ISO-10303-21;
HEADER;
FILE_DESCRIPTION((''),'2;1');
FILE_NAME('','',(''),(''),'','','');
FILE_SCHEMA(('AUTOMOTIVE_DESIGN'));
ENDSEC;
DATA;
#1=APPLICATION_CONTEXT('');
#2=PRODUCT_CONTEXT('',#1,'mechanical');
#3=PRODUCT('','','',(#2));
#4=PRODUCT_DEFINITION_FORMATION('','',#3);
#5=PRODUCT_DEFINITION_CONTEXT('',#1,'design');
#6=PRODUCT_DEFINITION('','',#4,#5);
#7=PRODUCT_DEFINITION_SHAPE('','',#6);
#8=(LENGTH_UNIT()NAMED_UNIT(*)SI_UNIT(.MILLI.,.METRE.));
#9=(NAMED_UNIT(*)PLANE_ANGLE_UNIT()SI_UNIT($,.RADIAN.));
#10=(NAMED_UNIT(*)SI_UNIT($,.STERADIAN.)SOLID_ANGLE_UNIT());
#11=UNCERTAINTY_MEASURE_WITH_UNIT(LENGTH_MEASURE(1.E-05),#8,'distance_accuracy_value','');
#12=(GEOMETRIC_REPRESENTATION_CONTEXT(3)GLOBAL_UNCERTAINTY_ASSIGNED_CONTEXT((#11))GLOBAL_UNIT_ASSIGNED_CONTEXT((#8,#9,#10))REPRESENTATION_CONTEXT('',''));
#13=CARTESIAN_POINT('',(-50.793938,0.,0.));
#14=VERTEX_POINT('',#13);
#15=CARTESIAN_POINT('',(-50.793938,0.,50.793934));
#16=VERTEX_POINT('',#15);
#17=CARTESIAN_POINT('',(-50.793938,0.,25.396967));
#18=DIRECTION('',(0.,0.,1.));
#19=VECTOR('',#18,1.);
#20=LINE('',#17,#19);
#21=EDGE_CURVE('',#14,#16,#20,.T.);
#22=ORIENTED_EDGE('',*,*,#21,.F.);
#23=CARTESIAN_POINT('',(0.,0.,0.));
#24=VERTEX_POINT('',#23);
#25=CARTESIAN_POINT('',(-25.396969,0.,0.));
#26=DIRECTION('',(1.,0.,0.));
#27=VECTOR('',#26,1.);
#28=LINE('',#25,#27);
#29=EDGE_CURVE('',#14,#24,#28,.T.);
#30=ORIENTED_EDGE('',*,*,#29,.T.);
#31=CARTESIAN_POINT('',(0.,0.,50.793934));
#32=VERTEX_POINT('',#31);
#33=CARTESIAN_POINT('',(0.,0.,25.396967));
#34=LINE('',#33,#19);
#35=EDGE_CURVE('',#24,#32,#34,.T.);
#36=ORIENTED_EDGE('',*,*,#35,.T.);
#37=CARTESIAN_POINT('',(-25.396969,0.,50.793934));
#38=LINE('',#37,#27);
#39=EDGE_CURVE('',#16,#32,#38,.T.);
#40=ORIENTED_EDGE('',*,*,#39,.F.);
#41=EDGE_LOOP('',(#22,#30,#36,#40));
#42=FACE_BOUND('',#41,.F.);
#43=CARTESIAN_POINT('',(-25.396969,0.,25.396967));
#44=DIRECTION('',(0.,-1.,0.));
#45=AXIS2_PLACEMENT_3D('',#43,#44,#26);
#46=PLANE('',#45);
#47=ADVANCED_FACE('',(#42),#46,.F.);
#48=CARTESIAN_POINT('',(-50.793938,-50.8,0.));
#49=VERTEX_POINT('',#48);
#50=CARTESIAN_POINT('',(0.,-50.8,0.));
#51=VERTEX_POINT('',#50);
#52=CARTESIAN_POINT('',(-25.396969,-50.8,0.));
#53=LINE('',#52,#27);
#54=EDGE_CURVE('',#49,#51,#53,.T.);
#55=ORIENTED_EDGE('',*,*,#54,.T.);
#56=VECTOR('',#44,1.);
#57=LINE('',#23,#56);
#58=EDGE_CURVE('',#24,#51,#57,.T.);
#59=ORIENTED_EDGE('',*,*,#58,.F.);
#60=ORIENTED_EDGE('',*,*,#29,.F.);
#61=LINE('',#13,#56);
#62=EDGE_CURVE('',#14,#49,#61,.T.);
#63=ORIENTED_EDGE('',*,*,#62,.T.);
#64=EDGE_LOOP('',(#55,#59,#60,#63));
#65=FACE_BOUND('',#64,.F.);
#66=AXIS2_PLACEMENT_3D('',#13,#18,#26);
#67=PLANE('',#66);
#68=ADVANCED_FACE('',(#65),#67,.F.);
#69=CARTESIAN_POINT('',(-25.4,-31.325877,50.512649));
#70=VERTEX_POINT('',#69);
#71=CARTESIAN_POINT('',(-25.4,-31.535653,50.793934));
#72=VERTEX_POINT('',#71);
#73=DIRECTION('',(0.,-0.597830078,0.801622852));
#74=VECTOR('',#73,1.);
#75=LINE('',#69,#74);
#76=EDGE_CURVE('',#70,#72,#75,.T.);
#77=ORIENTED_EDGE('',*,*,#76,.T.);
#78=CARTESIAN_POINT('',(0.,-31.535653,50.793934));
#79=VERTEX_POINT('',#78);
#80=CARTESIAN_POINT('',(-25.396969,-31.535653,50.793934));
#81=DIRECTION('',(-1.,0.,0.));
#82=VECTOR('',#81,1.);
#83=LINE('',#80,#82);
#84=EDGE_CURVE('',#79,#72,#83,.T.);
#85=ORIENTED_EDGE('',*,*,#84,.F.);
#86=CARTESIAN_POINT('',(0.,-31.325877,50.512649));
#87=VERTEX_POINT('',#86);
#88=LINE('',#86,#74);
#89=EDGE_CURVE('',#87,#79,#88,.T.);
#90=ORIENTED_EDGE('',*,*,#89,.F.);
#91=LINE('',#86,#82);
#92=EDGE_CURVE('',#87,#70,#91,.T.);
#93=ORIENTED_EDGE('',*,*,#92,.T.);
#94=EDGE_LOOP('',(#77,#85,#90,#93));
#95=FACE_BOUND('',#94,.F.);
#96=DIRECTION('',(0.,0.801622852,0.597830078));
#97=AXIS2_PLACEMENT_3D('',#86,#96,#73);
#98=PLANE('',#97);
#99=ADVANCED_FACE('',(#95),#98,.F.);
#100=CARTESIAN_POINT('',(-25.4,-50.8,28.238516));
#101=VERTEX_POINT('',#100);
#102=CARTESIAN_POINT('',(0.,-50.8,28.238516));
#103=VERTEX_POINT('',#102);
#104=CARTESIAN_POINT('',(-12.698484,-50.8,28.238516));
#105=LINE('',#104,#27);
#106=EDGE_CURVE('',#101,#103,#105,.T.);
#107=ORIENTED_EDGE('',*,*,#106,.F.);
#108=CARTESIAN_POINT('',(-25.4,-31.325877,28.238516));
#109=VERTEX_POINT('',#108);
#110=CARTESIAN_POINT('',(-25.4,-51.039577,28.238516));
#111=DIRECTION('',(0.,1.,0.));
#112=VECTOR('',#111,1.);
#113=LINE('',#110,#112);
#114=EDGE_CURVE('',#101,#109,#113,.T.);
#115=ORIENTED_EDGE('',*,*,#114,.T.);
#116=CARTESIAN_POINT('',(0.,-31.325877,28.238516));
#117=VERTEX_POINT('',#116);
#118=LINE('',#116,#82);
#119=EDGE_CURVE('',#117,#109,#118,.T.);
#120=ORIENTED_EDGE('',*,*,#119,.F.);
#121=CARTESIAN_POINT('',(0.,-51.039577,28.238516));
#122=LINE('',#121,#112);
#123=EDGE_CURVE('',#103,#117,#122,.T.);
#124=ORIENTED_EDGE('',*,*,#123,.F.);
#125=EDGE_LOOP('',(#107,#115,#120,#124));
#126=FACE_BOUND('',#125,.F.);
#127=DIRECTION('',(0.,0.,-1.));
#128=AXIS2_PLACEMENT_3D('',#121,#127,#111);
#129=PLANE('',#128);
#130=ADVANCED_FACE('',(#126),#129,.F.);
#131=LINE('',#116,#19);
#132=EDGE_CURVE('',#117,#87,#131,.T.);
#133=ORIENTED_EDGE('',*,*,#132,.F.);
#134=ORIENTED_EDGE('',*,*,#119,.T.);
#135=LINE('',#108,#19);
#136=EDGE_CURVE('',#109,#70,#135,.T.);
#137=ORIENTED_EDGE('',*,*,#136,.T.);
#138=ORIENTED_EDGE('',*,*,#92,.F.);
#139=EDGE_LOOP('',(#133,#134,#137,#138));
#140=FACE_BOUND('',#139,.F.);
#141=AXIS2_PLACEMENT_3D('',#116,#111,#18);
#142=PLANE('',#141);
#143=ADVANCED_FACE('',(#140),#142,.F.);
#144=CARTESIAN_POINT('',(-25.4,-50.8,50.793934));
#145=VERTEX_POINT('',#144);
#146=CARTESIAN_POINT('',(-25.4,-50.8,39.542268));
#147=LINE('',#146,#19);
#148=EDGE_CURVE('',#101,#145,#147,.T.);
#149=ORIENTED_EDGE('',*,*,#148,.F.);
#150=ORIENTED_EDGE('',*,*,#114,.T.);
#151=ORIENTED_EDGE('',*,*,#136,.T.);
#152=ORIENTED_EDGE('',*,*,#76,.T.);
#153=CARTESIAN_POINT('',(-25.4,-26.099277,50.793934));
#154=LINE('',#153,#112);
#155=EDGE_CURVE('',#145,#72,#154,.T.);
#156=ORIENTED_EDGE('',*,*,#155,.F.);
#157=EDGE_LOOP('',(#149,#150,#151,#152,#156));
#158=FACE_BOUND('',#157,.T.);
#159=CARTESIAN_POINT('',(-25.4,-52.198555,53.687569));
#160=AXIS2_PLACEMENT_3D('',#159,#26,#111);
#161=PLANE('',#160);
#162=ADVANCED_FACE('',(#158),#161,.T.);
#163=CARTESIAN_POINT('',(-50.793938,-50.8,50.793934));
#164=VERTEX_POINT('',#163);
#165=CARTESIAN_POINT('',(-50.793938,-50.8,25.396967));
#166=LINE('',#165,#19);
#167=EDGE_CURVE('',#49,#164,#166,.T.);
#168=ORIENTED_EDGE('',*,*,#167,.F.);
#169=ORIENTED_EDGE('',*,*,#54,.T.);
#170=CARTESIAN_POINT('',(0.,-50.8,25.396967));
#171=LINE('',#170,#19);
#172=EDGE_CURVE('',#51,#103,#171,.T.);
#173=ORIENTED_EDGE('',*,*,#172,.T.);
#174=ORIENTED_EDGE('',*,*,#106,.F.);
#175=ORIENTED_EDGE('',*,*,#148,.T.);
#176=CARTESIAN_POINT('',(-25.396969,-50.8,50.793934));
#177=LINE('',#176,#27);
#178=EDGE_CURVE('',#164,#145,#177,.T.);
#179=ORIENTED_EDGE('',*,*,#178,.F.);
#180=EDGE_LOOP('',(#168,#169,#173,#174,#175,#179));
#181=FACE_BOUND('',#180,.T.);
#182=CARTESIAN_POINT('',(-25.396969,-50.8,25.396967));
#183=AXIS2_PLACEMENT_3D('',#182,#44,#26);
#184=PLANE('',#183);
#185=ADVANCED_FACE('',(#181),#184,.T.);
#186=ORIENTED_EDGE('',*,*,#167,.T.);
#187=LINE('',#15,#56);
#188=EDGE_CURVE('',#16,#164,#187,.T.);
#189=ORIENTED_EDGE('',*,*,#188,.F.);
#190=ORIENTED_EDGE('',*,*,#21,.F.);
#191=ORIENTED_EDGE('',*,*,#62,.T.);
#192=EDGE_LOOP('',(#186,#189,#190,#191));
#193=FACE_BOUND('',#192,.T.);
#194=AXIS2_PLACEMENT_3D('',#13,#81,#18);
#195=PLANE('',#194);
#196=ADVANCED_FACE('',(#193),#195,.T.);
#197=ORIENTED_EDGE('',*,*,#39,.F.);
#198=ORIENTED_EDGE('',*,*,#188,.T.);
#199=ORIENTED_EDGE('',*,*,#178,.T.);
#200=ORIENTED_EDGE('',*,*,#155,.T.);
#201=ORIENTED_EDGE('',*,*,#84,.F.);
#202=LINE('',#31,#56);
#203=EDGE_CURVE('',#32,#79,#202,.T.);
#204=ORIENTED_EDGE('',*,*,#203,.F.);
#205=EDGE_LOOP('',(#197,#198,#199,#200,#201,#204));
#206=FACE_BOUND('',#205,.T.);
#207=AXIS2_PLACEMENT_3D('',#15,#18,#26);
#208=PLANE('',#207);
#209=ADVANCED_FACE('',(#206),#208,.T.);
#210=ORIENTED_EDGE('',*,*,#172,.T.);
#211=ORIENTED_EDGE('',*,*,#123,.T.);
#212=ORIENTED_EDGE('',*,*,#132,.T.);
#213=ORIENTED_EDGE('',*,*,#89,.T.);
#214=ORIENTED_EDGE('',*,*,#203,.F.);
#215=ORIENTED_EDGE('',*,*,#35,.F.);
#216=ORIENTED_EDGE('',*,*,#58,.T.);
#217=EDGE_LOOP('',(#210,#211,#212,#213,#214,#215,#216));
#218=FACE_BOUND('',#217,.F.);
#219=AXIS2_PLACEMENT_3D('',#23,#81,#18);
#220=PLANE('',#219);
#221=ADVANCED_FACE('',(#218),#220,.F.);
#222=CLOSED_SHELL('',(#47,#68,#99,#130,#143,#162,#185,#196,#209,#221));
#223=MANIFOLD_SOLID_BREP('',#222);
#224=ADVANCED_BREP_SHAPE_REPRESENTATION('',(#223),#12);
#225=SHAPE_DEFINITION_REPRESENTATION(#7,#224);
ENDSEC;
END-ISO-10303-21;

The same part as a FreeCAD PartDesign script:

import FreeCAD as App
import Part
import Sketcher
from FreeCAD import Vector
Q = App.Units.Quantity


def add_polygon(sketch, points):
    """Adds a closed chain of lines whose ends are joined by coincident constraints."""
    first, n = sketch.GeometryCount, len(points)
    for a, b in zip(points, points[1:] + points[:1]):
        sketch.addGeometry(Part.LineSegment(App.Vector(*a, 0), App.Vector(*b, 0)), False)
    for i in range(n):
        sketch.addConstraint(Sketcher.Constraint("Coincident", first + i, 2, first + (i + 1) % n, 1))

doc = App.newDocument("Part")
body = doc.addObject("PartDesign::Body", "Body")

# Sketch on XZ plane
sketch1 = doc.addObject("Sketcher::SketchObject", "Sketch")
body.addObject(sketch1)
sketch1.AttachmentSupport = (doc.XZ_Plane, [""])
sketch1.MapMode = "FlatFace"
add_polygon(sketch1, [(-51, 51), (-51, 0), (0, 0), (0, 51)])  # lines 0-3
sketch1.addConstraint([
    Sketcher.Constraint("Vertical", 0),
    Sketcher.Constraint("Horizontal", 1),
    Sketcher.Constraint("Vertical", 2),
    Sketcher.Constraint("Horizontal", 3),
    Sketcher.Constraint("Coincident", 1, 2, -1, 1),
    Sketcher.Constraint("DistanceX", 1, 1, 1, 2, Q("50.793938 mm")),
    Sketcher.Constraint("DistanceY", 0, 2, 0, 1, Q("50.793935 mm")),
])
pad1 = doc.addObject("PartDesign::Pad", "Pad")
body.addObject(pad1)
pad1.Profile = sketch1
pad1.Length = Q("2 in")

# Sketch on YZ plane
sketch2 = doc.addObject("Sketcher::SketchObject", "Sketch001")
body.addObject(sketch2)
sketch2.AttachmentSupport = (doc.YZ_Plane, [""])
sketch2.MapMode = "FlatFace"
add_polygon(sketch2, [(-31, 51), (-53, 79), (-73, 79), (-73, 55), (-51, 28), (-31, 28)])  # lines 0-5
sketch2.addConstraint([
    Sketcher.Constraint("Horizontal", 1),
    Sketcher.Constraint("Vertical", 2),
    Sketcher.Constraint("Horizontal", 4),
    Sketcher.Constraint("Vertical", 5),
    Sketcher.Constraint("DistanceX", 4, 1, 4, 2, Q("19.7137 mm")),
    Sketcher.Constraint("DistanceX", 2, 2, 3, 2, Q("21.8741 mm")),
    Sketcher.Constraint("Distance", 0, Q("35.68573 mm")),
    Sketcher.Constraint("DistanceX", 1, 2, 1, 1, Q("20.253797 mm")),
    Sketcher.Constraint("DistanceY", 2, 2, 2, 1, Q("23.679413 mm")),
    Sketcher.Constraint("DistanceY", 5, 1, 5, 2, Q("22.274133 mm")),
    Sketcher.Constraint("DistanceX", 0, 2, -1, 1, Q("52.65988 mm")),
    Sketcher.Constraint("DistanceY", -1, 1, 5, 2, Q("50.512649 mm")),
])
pocket1 = doc.addObject("PartDesign::Pocket", "Pocket")
body.addObject(pocket1)
pocket1.Profile = sketch2
pocket1.Length = Q("1 in")

doc.recompute()
